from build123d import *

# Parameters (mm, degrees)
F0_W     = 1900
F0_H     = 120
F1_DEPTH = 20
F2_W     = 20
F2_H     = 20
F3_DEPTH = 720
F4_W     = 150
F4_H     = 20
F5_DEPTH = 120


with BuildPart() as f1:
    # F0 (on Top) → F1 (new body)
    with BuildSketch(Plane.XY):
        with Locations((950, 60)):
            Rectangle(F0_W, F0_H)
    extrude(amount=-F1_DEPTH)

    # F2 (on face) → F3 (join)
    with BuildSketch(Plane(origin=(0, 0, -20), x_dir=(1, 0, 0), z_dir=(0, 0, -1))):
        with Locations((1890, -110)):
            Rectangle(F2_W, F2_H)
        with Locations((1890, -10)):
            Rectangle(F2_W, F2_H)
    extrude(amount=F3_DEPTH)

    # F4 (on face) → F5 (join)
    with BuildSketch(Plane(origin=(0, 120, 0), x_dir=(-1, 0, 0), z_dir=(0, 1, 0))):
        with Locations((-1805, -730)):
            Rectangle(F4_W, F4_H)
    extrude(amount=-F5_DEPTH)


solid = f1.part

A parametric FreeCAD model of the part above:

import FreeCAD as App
import Part
import Sketcher

V = App.Vector


def add_polygon(sketch, points):
    """Adds a closed chain of lines whose ends are joined by coincident constraints."""
    first, n = sketch.GeometryCount, len(points)
    for a, b in zip(points, points[1:] + points[:1]):
        sketch.addGeometry(Part.LineSegment(App.Vector(*a, 0), App.Vector(*b, 0)), False)
    for i in range(n):
        sketch.addConstraint(Sketcher.Constraint("Coincident", first + i, 2, first + (i + 1) % n, 1))

doc = App.newDocument("Part")
body = doc.addObject("PartDesign::Body", "Body")

# Sketch on XY plane
sketch1 = body.newObject("Sketcher::SketchObject", "Sketch")
sketch1.AttachmentSupport = (doc.getObject("XY_Plane"), [""])
sketch1.MapMode = "FlatFace"
add_polygon(sketch1, [(0, 120), (0, 0), (1900, 0), (1900, 120)])  # lines 0-3
sketch1.addConstraint([
    Sketcher.Constraint("Vertical", 0),
    Sketcher.Constraint("Horizontal", 1),
    Sketcher.Constraint("Vertical", 2),
    Sketcher.Constraint("Horizontal", 3),
    Sketcher.Constraint("Coincident", 0, 2, -1, 1),
    Sketcher.Constraint("DistanceX", 1, 1, 1, 2, 1900.0),
    Sketcher.Constraint("DistanceY", 0, 2, 0, 1, 120.0),
])
pad1 = body.newObject("PartDesign::Pad", "Pad")
pad1.Profile = sketch1
pad1.Length = 20
pad1.Reversed = True

# Sketch on XY plane
sketch2 = body.newObject("Sketcher::SketchObject", "Sketch001")
sketch2.AttachmentSupport = (doc.getObject("XY_Plane"), [""])
sketch2.MapMode = "FlatFace"
sketch2.AttachmentOffset = App.Placement(V(0, 0, -20), App.Rotation())
add_polygon(sketch2, [(1880, 100), (1880, 120), (1900, 120), (1900, 100)])  # lines 0-3
add_polygon(sketch2, [(1880, 0), (1880, 20), (1900, 20), (1900, 0)])  # lines 4-7
sketch2.addConstraint([
    Sketcher.Constraint("Vertical", 0),
    Sketcher.Constraint("Horizontal", 1),
    Sketcher.Constraint("Vertical", 2),
    Sketcher.Constraint("Horizontal", 3),
    Sketcher.Constraint("Vertical", 4),
    Sketcher.Constraint("Horizontal", 5),
    Sketcher.Constraint("Vertical", 6),
    Sketcher.Constraint("Horizontal", 7),
    Sketcher.Constraint("PointOnObject", 6, 2, -1),
    Sketcher.Constraint("Vertical", 3, 2, 4, 2),
    Sketcher.Constraint("Vertical", 2, 2, 5, 2),
    Sketcher.Constraint("Equal", 7, 0),
    Sketcher.Constraint("Equal", 2, 4),
    Sketcher.Constraint("DistanceX", 1, 1, 1, 2, 20.0),
    Sketcher.Constraint("DistanceX", -1, 1, 0, 2, 1880.0),
    Sketcher.Constraint("DistanceY", -1, 1, 0, 2, 120.0),
])
pad2 = body.newObject("PartDesign::Pad", "Pad001")
pad2.Profile = sketch2
pad2.Length = 720
pad2.Reversed = True

# Sketch on XZ plane
sketch3 = body.newObject("Sketcher::SketchObject", "Sketch002")
sketch3.AttachmentSupport = (doc.getObject("XZ_Plane"), [""])
sketch3.MapMode = "FlatFace"
sketch3.AttachmentOffset = App.Placement(V(0, 0, -120), App.Rotation())
add_polygon(sketch3, [(1880, -720), (1880, -740), (1730, -740), (1730, -720)])  # lines 0-3
sketch3.addConstraint([
    Sketcher.Constraint("Vertical", 0),
    Sketcher.Constraint("Horizontal", 1),
    Sketcher.Constraint("Vertical", 2),
    Sketcher.Constraint("Horizontal", 3),
    Sketcher.Constraint("DistanceX", 1, 2, 1, 1, 150.0),
    Sketcher.Constraint("DistanceY", 0, 2, 0, 1, 20.0),
    Sketcher.Constraint("DistanceX", -1, 1, 0, 2, 1880.0),
    Sketcher.Constraint("DistanceY", 0, 2, -1, 1, 740.0),
])
pad3 = body.newObject("PartDesign::Pad", "Pad002")
pad3.Profile = sketch3
pad3.Length = 120

doc.recompute()
